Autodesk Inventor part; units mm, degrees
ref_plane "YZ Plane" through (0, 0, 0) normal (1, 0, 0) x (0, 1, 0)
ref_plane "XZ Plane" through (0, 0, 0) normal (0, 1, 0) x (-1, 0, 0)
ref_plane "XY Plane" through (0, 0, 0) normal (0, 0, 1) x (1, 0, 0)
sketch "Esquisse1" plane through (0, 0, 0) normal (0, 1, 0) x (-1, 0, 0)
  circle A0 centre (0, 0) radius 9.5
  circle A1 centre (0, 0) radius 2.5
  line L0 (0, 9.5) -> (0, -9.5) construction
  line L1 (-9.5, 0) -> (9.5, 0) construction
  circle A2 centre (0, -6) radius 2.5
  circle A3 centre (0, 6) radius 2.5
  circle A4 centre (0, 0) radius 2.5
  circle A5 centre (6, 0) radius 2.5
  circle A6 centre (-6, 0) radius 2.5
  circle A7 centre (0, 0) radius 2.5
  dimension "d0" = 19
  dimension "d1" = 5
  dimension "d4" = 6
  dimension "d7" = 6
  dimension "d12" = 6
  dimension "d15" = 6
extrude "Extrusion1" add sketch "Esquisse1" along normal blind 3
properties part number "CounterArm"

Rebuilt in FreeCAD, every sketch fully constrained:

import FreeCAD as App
import Part
import Sketcher

doc = App.newDocument("Part")
body = doc.addObject("PartDesign::Body", "Body")

# Sketch on XZ plane
sketch1 = body.newObject("Sketcher::SketchObject", "Sketch")
sketch1.AttachmentSupport = (doc.getObject("XZ_Plane"), [""])
sketch1.MapMode = "FlatFace"
sketch1.addGeometry(Part.Circle(App.Vector(0, 0, 0), App.Vector(0, 0, 1), 9.5), False)
sketch1.addGeometry(Part.Circle(App.Vector(0, -6, 0), App.Vector(0, 0, 1), 2.5), False)
sketch1.addGeometry(Part.Circle(App.Vector(6, 0, 0), App.Vector(0, 0, 1), 2.5), False)
sketch1.addGeometry(Part.Circle(App.Vector(0, 0, 0), App.Vector(0, 0, 1), 2.5), False)
sketch1.addGeometry(Part.Circle(App.Vector(-6, 0, 0), App.Vector(0, 0, 1), 2.5), False)
sketch1.addGeometry(Part.Circle(App.Vector(0, 6, 0), App.Vector(0, 0, 1), 2.5), False)
sketch1.addConstraint(Sketcher.Constraint("Coincident", 0, 3, -1, 1))
sketch1.addConstraint(Sketcher.Constraint("Coincident", 3, 3, -1, 1))
sketch1.addConstraint(Sketcher.Constraint("Equal", 1, 2))
sketch1.addConstraint(Sketcher.Constraint("Equal", 2, 3))
sketch1.addConstraint(Sketcher.Constraint("Equal", 3, 4))
sketch1.addConstraint(Sketcher.Constraint("Equal", 4, 5))
sketch1.addConstraint(Sketcher.Constraint("Symmetric", 2, 3, 4, 3, -1, 1))
sketch1.addConstraint(Sketcher.Constraint("Symmetric", 1, 3, 5, 3, -1, 1))
sketch1.addConstraint(Sketcher.Constraint("PointOnObject", 1, 3, -2))
sketch1.addConstraint(Sketcher.Constraint("PointOnObject", 2, 3, -1))
sketch1.addConstraint(Sketcher.Constraint("Diameter", 0, 19.0))
sketch1.addConstraint(Sketcher.Constraint("Diameter", 1, 5.0))
sketch1.addConstraint(Sketcher.Constraint("DistanceY", 1, 3, -1, 1, 6.0))
sketch1.addConstraint(Sketcher.Constraint("DistanceX", -1, 1, 2, 3, 6.0))
pad1 = body.newObject("PartDesign::Pad", "Pad")
pad1.Profile = sketch1
pad1.Length = 3
pad1.Reversed = True

doc.recompute()
